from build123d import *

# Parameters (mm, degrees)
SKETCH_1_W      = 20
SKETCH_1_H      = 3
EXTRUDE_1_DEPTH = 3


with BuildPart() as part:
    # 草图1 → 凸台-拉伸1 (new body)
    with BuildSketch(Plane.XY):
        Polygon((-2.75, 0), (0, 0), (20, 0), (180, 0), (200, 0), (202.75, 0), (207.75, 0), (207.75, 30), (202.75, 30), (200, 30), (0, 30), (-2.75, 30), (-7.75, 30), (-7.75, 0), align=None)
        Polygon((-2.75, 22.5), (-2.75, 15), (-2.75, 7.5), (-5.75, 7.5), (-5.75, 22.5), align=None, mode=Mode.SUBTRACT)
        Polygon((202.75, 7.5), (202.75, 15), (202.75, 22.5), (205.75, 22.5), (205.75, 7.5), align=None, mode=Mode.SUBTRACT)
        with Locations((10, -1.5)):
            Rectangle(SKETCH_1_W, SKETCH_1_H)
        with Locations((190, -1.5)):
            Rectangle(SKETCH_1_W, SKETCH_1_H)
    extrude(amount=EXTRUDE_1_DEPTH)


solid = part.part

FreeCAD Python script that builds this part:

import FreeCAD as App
import Part
import Sketcher

V = App.Vector
Q = App.Units.Quantity


def add_polygon(sketch, points):
    """Adds a closed chain of lines whose ends are joined by coincident constraints."""
    first, n = sketch.GeometryCount, len(points)
    for a, b in zip(points, points[1:] + points[:1]):
        sketch.addGeometry(Part.LineSegment(App.Vector(*a, 0), App.Vector(*b, 0)), False)
    for i in range(n):
        sketch.addConstraint(Sketcher.Constraint("Coincident", first + i, 2, first + (i + 1) % n, 1))

doc = App.newDocument("Part")
body = doc.addObject("PartDesign::Body", "Body")

# Sketch on XY plane
sketch1 = body.newObject("Sketcher::SketchObject", "Sketch")
sketch1.AttachmentSupport = (doc.getObject("XY_Plane"), [""])
sketch1.MapMode = "FlatFace"
add_polygon(sketch1, [(207.75, 0), (207.75, 30), (-7.75, 30), (-7.75, 0), (0, 0), (0, -3), (20, -3), (20, 0), (180, 0), (180, -3), (200, -3), (200, 0)])  # lines 0-11
add_polygon(sketch1, [(-5.75, 22.5), (-2.75, 22.5), (-2.75, 7.5), (-5.75, 7.5)])  # lines 12-15
add_polygon(sketch1, [(205.75, 7.5), (202.75, 7.5), (202.75, 22.5), (205.75, 22.5)])  # lines 16-19
sketch1.addConstraint([
    Sketcher.Constraint("Vertical", 0),
    Sketcher.Constraint("Horizontal", 1),
    Sketcher.Constraint("Vertical", 2),
    Sketcher.Constraint("Horizontal", 3),
    Sketcher.Constraint("Vertical", 4),
    Sketcher.Constraint("Horizontal", 5),
    Sketcher.Constraint("Vertical", 6),
    Sketcher.Constraint("Horizontal", 7),
    Sketcher.Constraint("Vertical", 8),
    Sketcher.Constraint("Horizontal", 9),
    Sketcher.Constraint("Vertical", 10),
    Sketcher.Constraint("Horizontal", 11),
    Sketcher.Constraint("Horizontal", 12),
    Sketcher.Constraint("Vertical", 13),
    Sketcher.Constraint("Horizontal", 14),
    Sketcher.Constraint("Vertical", 15),
    Sketcher.Constraint("Horizontal", 16),
    Sketcher.Constraint("Vertical", 17),
    Sketcher.Constraint("Horizontal", 18),
    Sketcher.Constraint("Vertical", 19),
    Sketcher.Constraint("Coincident", 3, 2, -1, 1),
    Sketcher.Constraint("PointOnObject", 6, 2, -1),
    Sketcher.Constraint("PointOnObject", 10, 2, -1),
    Sketcher.Constraint("Horizontal", 5, 2, 8, 2),
    Sketcher.Constraint("Horizontal", 14, 2, 16, 2),
    Sketcher.Constraint("Horizontal", 15, 2, 17, 2),
    Sketcher.Constraint("Equal", 5, 9),
    Sketcher.Constraint("Equal", 3, 11),
    Sketcher.Constraint("Equal", 14, 16),
    Sketcher.Constraint("Equal", 18, 4),
    Sketcher.Constraint("DistanceX", 5, 1, 5, 2, Q("20 mm")),
    Sketcher.Constraint("DistanceX", 7, 1, 7, 2, Q("160 mm")),
    Sketcher.Constraint("DistanceX", 12, 1, 12, 2, Q("3 mm")),
    Sketcher.Constraint("DistanceY", 0, 1, 0, 2, Q("30 mm")),
    Sketcher.Constraint("DistanceY", 13, 2, 13, 1, Q("15 mm")),
    Sketcher.Constraint("DistanceX", 1, 2, 1, 1, Q("215.5 mm")),
    Sketcher.Constraint("DistanceX", 1, 2, 12, 2, Q("5 mm")),
    Sketcher.Constraint("DistanceX", 16, 2, 11, 2, Q("5 mm")),
    Sketcher.Constraint("DistanceY", -1, 1, 12, 2, Q("22.5 mm")),
])
pad1 = body.newObject("PartDesign::Pad", "Pad")
pad1.Profile = sketch1
pad1.Length = 3

doc.recompute()
